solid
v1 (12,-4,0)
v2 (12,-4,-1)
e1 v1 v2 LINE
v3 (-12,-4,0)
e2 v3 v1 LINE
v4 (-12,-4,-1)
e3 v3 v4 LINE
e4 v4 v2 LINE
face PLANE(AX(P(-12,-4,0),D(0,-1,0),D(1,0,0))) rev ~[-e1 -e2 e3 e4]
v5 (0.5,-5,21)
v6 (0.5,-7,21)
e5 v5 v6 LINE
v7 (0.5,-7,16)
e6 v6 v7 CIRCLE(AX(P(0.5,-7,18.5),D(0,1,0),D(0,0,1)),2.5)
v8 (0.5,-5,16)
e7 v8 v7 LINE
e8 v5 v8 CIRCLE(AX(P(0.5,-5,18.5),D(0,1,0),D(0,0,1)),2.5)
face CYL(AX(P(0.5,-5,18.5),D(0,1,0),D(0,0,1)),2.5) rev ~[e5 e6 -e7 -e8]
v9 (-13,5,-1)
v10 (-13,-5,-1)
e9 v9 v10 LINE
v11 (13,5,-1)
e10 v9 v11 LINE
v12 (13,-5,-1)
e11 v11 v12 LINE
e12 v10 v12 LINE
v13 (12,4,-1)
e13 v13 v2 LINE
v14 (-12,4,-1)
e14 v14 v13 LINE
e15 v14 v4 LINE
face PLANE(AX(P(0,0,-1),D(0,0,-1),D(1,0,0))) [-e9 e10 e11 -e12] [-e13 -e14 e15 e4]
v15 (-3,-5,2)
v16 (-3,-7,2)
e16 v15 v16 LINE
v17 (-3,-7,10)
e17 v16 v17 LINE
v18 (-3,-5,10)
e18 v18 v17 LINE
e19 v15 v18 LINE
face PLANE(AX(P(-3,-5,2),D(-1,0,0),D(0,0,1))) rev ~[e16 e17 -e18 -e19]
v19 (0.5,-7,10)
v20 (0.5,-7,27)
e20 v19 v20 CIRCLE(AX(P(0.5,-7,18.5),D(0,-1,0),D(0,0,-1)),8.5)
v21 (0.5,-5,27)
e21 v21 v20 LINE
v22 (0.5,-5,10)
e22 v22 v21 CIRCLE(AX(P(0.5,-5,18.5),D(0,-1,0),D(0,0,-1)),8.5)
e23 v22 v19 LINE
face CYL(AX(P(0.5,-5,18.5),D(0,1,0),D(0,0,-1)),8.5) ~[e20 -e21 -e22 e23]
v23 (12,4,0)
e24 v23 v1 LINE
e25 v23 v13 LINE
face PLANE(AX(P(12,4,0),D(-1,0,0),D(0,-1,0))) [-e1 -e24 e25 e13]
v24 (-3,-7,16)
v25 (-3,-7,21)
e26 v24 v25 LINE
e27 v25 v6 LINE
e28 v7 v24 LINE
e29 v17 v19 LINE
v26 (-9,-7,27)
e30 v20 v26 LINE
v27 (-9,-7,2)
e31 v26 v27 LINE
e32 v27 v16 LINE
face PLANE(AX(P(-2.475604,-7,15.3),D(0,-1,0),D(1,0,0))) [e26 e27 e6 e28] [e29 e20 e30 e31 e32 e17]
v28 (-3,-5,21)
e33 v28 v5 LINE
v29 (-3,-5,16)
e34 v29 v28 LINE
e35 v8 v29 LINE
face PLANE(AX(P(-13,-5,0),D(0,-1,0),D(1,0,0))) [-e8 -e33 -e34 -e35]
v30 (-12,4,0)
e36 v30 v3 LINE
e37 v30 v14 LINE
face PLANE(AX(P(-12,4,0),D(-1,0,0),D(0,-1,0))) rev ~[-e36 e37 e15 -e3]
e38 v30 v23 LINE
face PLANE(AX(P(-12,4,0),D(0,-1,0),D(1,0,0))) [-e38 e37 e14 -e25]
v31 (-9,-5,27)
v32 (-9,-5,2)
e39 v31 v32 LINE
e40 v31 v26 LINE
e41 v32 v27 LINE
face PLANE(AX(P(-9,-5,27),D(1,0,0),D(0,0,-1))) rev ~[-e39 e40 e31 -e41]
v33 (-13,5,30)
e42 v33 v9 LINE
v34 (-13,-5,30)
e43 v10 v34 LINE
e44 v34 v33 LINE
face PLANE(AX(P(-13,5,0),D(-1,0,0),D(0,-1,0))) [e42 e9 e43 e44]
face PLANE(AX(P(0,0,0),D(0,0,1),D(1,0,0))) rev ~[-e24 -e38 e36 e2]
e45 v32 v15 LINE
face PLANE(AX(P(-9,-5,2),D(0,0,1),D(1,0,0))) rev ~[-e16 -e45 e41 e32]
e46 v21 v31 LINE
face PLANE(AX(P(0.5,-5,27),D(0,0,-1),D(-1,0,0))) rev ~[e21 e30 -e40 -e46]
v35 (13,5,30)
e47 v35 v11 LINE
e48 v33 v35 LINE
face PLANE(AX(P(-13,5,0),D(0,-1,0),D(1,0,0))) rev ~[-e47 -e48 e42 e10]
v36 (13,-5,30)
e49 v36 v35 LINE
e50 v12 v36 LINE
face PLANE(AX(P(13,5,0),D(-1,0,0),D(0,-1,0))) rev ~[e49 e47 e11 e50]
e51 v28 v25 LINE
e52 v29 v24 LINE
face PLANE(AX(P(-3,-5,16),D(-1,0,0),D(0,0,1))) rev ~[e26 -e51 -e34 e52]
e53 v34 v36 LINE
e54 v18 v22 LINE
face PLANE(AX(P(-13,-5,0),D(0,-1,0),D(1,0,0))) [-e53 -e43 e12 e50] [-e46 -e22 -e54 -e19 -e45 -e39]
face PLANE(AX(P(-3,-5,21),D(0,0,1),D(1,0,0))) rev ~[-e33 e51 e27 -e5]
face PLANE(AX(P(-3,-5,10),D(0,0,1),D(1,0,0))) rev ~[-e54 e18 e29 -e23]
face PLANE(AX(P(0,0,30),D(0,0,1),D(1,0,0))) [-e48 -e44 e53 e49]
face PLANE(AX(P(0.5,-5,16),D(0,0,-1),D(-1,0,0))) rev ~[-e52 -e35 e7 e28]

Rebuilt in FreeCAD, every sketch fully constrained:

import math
import FreeCAD as App
import Part
import Sketcher

V = App.Vector


def add_polygon(sketch, points):
    """Adds a closed chain of lines whose ends are joined by coincident constraints."""
    first, n = sketch.GeometryCount, len(points)
    for a, b in zip(points, points[1:] + points[:1]):
        sketch.addGeometry(Part.LineSegment(App.Vector(*a, 0), App.Vector(*b, 0)), False)
    for i in range(n):
        sketch.addConstraint(Sketcher.Constraint("Coincident", first + i, 2, first + (i + 1) % n, 1))

doc = App.newDocument("Part")
params = doc.addObject("Spreadsheet::Sheet", "Params")
for row, (alias, value) in enumerate([
    ("sketch1_width", "26 mm"),
    ("sketch1_height", "10 mm"),
    ("pad1_length", "30 mm"),
    ("sketch2_width", "26 mm"),
    ("sketch2_width2", "24 mm"),
    ("sketch2_height", "10 mm"),
    ("sketch2_height2", "8 mm"),
    ("pad2_length", "1 mm"),
    ("sketch3_radius", "8.5 mm"),
    ("sketch3_radius2", "2.5 mm"),
    ("sketch3_width", "6 mm"),
    ("sketch3_height", "25 mm"),
    ("sketch3_width2", "3.5 mm"),
    ("pad3_length", "2 mm"),
], start=1):
    params.set(f"A{row}", alias)
    params.set(f"B{row}", "=" + value)
    params.setAlias(f"B{row}", alias)

body = doc.addObject("PartDesign::Body", "Body")

# Sketch on XY plane
sketch1 = doc.addObject("Sketcher::SketchObject", "Sketch")
body.addObject(sketch1)
sketch1.AttachmentSupport = (doc.XY_Plane, [""])
sketch1.MapMode = "FlatFace"
add_polygon(sketch1, [(-13, 5), (-13, -5), (13, -5), (13, 5)])  # lines 0-3
sketch1.addConstraint([
    Sketcher.Constraint("Vertical", 0),
    Sketcher.Constraint("Horizontal", 1),
    Sketcher.Constraint("Vertical", 2),
    Sketcher.Constraint("Horizontal", 3),
    Sketcher.Constraint("Symmetric", 0, 2, 2, 2, -1, 1),
    Sketcher.Constraint("DistanceX", 1, 1, 1, 2, 26.0),
    Sketcher.Constraint("DistanceY", 0, 2, 0, 1, 10.0),
])
sketch1.setExpression("Constraints[9]", "Params.sketch1_width")
sketch1.setExpression("Constraints[10]", "Params.sketch1_height")
pad1 = doc.addObject("PartDesign::Pad", "Pad")
body.addObject(pad1)
pad1.Profile = sketch1
pad1.setExpression("Length", "Params.pad1_length")

# Sketch on XY plane
sketch2 = doc.addObject("Sketcher::SketchObject", "Sketch001")
body.addObject(sketch2)
sketch2.AttachmentSupport = (doc.XY_Plane, [""])
sketch2.MapMode = "FlatFace"
add_polygon(sketch2, [(-13, -5), (-13, 5), (13, 5), (13, -5)])  # lines 0-3
add_polygon(sketch2, [(12, 4), (-12, 4), (-12, -4), (12, -4)])  # lines 4-7
sketch2.addConstraint([
    Sketcher.Constraint("Vertical", 0),
    Sketcher.Constraint("Horizontal", 1),
    Sketcher.Constraint("Vertical", 2),
    Sketcher.Constraint("Horizontal", 3),
    Sketcher.Constraint("Horizontal", 4),
    Sketcher.Constraint("Vertical", 5),
    Sketcher.Constraint("Horizontal", 6),
    Sketcher.Constraint("Vertical", 7),
    Sketcher.Constraint("Symmetric", 0, 2, 2, 2, -1, 1),
    Sketcher.Constraint("Symmetric", 4, 2, 6, 2, -1, 1),
    Sketcher.Constraint("DistanceX", 1, 1, 1, 2, 26.0),
    Sketcher.Constraint("DistanceX", 4, 2, 4, 1, 24.0),
    Sketcher.Constraint("DistanceY", 0, 1, 0, 2, 10.0),
    Sketcher.Constraint("DistanceY", 5, 2, 5, 1, 8.0),
])
sketch2.setExpression("Constraints[18]", "Params.sketch2_width")
sketch2.setExpression("Constraints[19]", "Params.sketch2_width2")
sketch2.setExpression("Constraints[20]", "Params.sketch2_height")
sketch2.setExpression("Constraints[21]", "Params.sketch2_height2")
pad2 = doc.addObject("PartDesign::Pad", "Pad001")
body.addObject(pad2)
pad2.Profile = sketch2
pad2.setExpression("Length", "Params.pad2_length")
pad2.Reversed = True

# Sketch on XZ plane
sketch3 = doc.addObject("Sketcher::SketchObject", "Sketch002")
body.addObject(sketch3)
sketch3.AttachmentSupport = (doc.XZ_Plane, [""])
sketch3.MapMode = "FlatFace"
sketch3.AttachmentOffset = App.Placement(V(0, 0, 5), App.Rotation())
sketch3.addGeometry([
    Part.LineSegment(V(-9, 27, 0), V(-9, 2, 0)),  # 0
    Part.LineSegment(V(-9, 2, 0), V(-3, 2, 0)),  # 1
    Part.LineSegment(V(-3, 2, 0), V(-3, 10, 0)),  # 2
    Part.LineSegment(V(-3, 10, 0), V(0.5, 10, 0)),  # 3
    Part.ArcOfCircle(Part.Circle(V(0.5, 18.5, 0), V(0, 0, 1), 8.5), math.radians(-90), math.radians(90)),  # 4
    Part.LineSegment(V(0.5, 27, 0), V(-9, 27, 0)),  # 5
    Part.LineSegment(V(0.5, 16, 0), V(-3, 16, 0)),  # 6
    Part.LineSegment(V(-3, 16, 0), V(-3, 21, 0)),  # 7
    Part.LineSegment(V(-3, 21, 0), V(0.5, 21, 0)),  # 8
    Part.ArcOfCircle(Part.Circle(V(0.5, 18.5, 0), V(0, 0, 1), 2.5), math.radians(-90), math.radians(90)),  # 9
], False)
sketch3.addConstraint([
    Sketcher.Constraint("Coincident", 0, 2, 1, 1),
    Sketcher.Constraint("Coincident", 1, 2, 2, 1),
    Sketcher.Constraint("Coincident", 2, 2, 3, 1),
    Sketcher.Constraint("Tangent", 3, 2, 4, 1),
    Sketcher.Constraint("Tangent", 4, 2, 5, 1),
    Sketcher.Constraint("Coincident", 5, 2, 0, 1),
    Sketcher.Constraint("Coincident", 6, 2, 7, 1),
    Sketcher.Constraint("Coincident", 7, 2, 8, 1),
    Sketcher.Constraint("Tangent", 8, 2, 9, 2),
    Sketcher.Constraint("Tangent", 9, 1, 6, 1),
    Sketcher.Constraint("Vertical", 0),
    Sketcher.Constraint("Horizontal", 1),
    Sketcher.Constraint("Vertical", 2),
    Sketcher.Constraint("Horizontal", 3),
    Sketcher.Constraint("Horizontal", 5),
    Sketcher.Constraint("Horizontal", 6),
    Sketcher.Constraint("Vertical", 7),
    Sketcher.Constraint("Horizontal", 8),
    Sketcher.Constraint("Coincident", 9, 3, 4, 3),
    Sketcher.Constraint("Vertical", 2, 2, 6, 2),
    Sketcher.Constraint("Radius", 4, 8.5),
    Sketcher.Constraint("Radius", 9, 2.5),
    Sketcher.Constraint("DistanceX", 1, 1, 1, 2, 6.0),
    Sketcher.Constraint("DistanceY", 0, 2, 0, 1, 25.0),
    Sketcher.Constraint("DistanceX", 3, 1, 3, 2, 3.5),
    Sketcher.Constraint("DistanceX", 0, 2, -1, 1, 9.0),
    Sketcher.Constraint("DistanceY", -1, 1, 0, 2, 2.0),
])
sketch3.setExpression("Constraints[20]", "Params.sketch3_radius")
sketch3.setExpression("Constraints[21]", "Params.sketch3_radius2")
sketch3.setExpression("Constraints[22]", "Params.sketch3_width")
sketch3.setExpression("Constraints[23]", "Params.sketch3_height")
sketch3.setExpression("Constraints[24]", "Params.sketch3_width2")
pad3 = doc.addObject("PartDesign::Pad", "Pad002")
body.addObject(pad3)
pad3.Profile = sketch3
pad3.setExpression("Length", "Params.pad3_length")

doc.recompute()
